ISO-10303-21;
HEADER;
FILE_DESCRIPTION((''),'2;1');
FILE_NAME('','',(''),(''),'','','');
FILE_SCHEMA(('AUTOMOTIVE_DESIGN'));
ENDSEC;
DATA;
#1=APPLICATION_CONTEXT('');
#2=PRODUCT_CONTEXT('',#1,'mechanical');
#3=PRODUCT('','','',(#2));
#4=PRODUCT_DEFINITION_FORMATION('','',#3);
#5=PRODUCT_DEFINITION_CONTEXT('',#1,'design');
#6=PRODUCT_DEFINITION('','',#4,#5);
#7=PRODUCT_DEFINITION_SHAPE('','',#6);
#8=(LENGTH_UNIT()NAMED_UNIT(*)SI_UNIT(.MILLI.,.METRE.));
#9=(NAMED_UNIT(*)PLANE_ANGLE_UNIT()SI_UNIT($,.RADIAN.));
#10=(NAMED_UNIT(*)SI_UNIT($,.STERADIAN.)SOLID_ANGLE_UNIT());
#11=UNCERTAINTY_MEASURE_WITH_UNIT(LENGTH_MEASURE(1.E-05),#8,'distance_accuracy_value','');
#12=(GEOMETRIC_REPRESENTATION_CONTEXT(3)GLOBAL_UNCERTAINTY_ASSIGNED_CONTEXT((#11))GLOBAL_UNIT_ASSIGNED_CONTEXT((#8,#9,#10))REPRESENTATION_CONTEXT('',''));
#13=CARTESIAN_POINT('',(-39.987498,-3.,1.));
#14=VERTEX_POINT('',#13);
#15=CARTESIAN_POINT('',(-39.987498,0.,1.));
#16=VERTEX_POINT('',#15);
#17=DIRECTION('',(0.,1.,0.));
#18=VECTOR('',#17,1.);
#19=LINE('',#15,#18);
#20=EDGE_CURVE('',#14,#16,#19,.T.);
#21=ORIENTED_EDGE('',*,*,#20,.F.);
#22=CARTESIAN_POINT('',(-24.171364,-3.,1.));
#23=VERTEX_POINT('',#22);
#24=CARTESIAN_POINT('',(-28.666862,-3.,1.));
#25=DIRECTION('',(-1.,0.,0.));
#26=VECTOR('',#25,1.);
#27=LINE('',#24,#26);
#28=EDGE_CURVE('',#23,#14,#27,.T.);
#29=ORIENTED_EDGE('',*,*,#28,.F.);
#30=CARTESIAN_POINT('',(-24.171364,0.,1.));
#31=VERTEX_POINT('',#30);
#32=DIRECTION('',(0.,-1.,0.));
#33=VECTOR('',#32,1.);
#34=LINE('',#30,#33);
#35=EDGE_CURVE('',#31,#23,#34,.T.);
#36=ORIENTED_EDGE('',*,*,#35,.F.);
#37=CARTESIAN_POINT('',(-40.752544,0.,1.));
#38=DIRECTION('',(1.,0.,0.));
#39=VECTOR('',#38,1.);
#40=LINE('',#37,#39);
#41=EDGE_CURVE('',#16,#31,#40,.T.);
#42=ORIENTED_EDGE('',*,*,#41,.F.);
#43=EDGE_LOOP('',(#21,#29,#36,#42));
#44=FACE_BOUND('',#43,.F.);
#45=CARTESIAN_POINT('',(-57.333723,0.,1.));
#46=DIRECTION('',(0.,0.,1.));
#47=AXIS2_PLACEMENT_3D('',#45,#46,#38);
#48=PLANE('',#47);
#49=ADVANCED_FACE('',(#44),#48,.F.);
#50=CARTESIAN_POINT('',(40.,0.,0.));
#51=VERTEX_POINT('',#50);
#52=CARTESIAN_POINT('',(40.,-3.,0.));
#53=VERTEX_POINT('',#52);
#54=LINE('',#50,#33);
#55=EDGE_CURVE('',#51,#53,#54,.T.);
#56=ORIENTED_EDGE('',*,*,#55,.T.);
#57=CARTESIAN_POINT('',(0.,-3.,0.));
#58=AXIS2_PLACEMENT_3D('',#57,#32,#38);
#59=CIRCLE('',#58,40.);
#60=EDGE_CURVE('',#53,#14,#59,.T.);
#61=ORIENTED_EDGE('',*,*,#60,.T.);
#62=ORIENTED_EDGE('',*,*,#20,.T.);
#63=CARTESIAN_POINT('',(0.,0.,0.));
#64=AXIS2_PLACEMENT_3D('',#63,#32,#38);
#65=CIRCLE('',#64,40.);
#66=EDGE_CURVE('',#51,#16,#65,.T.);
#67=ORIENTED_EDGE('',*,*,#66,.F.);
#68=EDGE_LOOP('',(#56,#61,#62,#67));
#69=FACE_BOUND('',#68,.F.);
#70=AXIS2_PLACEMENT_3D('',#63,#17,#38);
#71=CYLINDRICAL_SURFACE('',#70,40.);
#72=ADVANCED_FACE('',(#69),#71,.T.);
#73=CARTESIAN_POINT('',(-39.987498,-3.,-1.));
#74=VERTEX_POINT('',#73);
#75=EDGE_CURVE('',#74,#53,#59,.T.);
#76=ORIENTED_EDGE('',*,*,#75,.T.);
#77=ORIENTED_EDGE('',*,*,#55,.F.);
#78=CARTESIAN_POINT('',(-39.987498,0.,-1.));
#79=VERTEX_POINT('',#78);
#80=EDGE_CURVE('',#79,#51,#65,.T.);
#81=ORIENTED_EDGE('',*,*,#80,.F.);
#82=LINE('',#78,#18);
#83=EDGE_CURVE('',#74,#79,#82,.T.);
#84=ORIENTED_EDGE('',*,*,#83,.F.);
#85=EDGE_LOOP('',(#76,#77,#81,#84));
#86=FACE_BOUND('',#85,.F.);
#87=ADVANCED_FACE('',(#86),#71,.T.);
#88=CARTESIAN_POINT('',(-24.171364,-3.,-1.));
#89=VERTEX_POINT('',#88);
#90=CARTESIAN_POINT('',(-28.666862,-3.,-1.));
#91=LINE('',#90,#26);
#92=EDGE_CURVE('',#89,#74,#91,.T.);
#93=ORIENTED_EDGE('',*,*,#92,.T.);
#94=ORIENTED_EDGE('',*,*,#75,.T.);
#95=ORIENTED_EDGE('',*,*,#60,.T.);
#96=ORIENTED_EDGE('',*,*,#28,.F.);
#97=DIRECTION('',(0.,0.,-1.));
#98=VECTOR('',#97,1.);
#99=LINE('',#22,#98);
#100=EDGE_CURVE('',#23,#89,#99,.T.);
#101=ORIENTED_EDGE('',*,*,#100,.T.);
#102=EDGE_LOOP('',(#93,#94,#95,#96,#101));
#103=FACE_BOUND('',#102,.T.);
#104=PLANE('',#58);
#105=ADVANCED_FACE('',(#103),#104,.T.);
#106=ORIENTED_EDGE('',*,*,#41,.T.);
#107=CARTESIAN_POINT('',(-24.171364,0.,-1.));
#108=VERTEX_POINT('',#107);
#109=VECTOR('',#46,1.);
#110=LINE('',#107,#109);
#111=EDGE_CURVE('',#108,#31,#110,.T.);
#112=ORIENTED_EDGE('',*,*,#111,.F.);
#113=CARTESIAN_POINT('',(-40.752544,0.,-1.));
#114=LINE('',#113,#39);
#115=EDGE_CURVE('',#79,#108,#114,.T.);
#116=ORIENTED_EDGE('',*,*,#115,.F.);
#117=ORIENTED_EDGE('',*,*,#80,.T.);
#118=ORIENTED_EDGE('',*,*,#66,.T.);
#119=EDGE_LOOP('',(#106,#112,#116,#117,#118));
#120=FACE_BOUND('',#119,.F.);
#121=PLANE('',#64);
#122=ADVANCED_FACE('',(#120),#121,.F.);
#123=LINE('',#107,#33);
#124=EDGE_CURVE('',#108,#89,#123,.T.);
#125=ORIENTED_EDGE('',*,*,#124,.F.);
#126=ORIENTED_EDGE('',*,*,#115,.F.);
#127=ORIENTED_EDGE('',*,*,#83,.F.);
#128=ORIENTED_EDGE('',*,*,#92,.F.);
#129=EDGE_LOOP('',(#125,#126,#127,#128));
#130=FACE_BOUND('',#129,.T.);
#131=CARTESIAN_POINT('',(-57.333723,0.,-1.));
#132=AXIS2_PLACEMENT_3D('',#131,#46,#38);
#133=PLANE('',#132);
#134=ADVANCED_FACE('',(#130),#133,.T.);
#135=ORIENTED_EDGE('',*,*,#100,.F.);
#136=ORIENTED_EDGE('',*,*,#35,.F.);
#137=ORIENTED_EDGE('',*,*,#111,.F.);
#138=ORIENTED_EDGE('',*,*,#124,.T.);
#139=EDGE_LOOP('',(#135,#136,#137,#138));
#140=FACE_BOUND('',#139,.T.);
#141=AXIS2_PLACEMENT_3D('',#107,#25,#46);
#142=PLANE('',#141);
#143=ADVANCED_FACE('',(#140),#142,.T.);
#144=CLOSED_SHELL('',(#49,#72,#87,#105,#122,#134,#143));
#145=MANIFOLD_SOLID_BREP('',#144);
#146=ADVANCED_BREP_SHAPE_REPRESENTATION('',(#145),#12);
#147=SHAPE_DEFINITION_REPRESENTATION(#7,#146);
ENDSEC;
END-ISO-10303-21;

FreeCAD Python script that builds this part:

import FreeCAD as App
import Part
import Sketcher

V = App.Vector
Q = App.Units.Quantity

doc = App.newDocument("Part")
body = doc.addObject("PartDesign::Body", "Body")

# Sketch on XZ plane
sketch1 = body.newObject("Sketcher::SketchObject", "Sketch")
sketch1.AttachmentSupport = (doc.getObject("XZ_Plane"), [""])
sketch1.MapMode = "FlatFace"
sketch1.addGeometry(Part.Circle(V(0, 0, 0), V(0, 0, 1), 40), False)
sketch1.addConstraint(Sketcher.Constraint("Coincident", 0, 3, -1, 1))
sketch1.addConstraint(Sketcher.Constraint("Diameter", 0, Q("80 mm")))
pad1 = body.newObject("PartDesign::Pad", "Pad")
pad1.Profile = sketch1
pad1.Length = 3

# Sketch on XZ plane
sketch2 = body.newObject("Sketcher::SketchObject", "Sketch001")
sketch2.AttachmentSupport = (doc.getObject("XZ_Plane"), [""])
sketch2.MapMode = "FlatFace"
sketch2.addGeometry(Part.LineSegment(V(-57.3, 1, 0), V(-57.3, 0, 0)), False)
sketch2.addGeometry(Part.LineSegment(V(-57.3, 0, 0), V(-24.2, 0, 0)), False)
sketch2.addGeometry(Part.LineSegment(V(-24.2, 0, 0), V(-24.2, 1, 0)), False)
sketch2.addGeometry(Part.LineSegment(V(-24.2, 1, 0), V(-57.3, 1, 0)), False)
sketch2.addConstraint(Sketcher.Constraint("Coincident", 0, 2, 1, 1))
sketch2.addConstraint(Sketcher.Constraint("Coincident", 1, 2, 2, 1))
sketch2.addConstraint(Sketcher.Constraint("Coincident", 2, 2, 3, 1))
sketch2.addConstraint(Sketcher.Constraint("Coincident", 3, 2, 0, 1))
sketch2.addConstraint(Sketcher.Constraint("Vertical", 0))
sketch2.addConstraint(Sketcher.Constraint("Horizontal", 1))
sketch2.addConstraint(Sketcher.Constraint("Vertical", 2))
sketch2.addConstraint(Sketcher.Constraint("Horizontal", 3))
sketch2.addConstraint(Sketcher.Constraint("PointOnObject", 0, 2, -1))
sketch2.addConstraint(Sketcher.Constraint("DistanceY", 0, 2, 0, 1, Q("1 mm")))
sketch2.addConstraint(Sketcher.Constraint("DistanceX", 1, 1, 1, 2, Q("33.162359 mm")))
sketch2.addConstraint(Sketcher.Constraint("DistanceX", 0, 2, -1, 1, Q("57.333723 mm")))
pocket1 = body.newObject("PartDesign::Pocket", "Pocket")
pocket1.Profile = sketch2
pocket1.Length = 24.9
pocket1.Reversed = True

# Sketch on XZ plane
sketch3 = body.newObject("Sketcher::SketchObject", "Sketch002")
sketch3.AttachmentSupport = (doc.getObject("XZ_Plane"), [""])
sketch3.MapMode = "FlatFace"
sketch3.addGeometry(Part.LineSegment(V(-57.3, 1, 0), V(-57.3, -1, 0)), False)
sketch3.addGeometry(Part.LineSegment(V(-57.3, -1, 0), V(-24.2, -1, 0)), False)
sketch3.addGeometry(Part.LineSegment(V(-24.2, -1, 0), V(-24.2, 1, 0)), False)
sketch3.addGeometry(Part.LineSegment(V(-24.2, 1, 0), V(-57.3, 1, 0)), False)
sketch3.addConstraint(Sketcher.Constraint("Coincident", 0, 2, 1, 1))
sketch3.addConstraint(Sketcher.Constraint("Coincident", 1, 2, 2, 1))
sketch3.addConstraint(Sketcher.Constraint("Coincident", 2, 2, 3, 1))
sketch3.addConstraint(Sketcher.Constraint("Coincident", 3, 2, 0, 1))
sketch3.addConstraint(Sketcher.Constraint("Vertical", 0))
sketch3.addConstraint(Sketcher.Constraint("Horizontal", 1))
sketch3.addConstraint(Sketcher.Constraint("Vertical", 2))
sketch3.addConstraint(Sketcher.Constraint("Horizontal", 3))
sketch3.addConstraint(Sketcher.Constraint("DistanceY", 0, 2, 0, 1, Q("2 mm")))
sketch3.addConstraint(Sketcher.Constraint("DistanceY", 0, 2, -1, 1, Q("1 mm")))
sketch3.addConstraint(Sketcher.Constraint("DistanceX", 1, 1, 1, 2, Q("33.162359 mm")))
sketch3.addConstraint(Sketcher.Constraint("DistanceX", 0, 2, -1, 1, Q("57.333723 mm")))
pocket2 = body.newObject("PartDesign::Pocket", "Pocket001")
pocket2.Profile = sketch3
pocket2.Length = 25
pocket2.Reversed = True

doc.recompute()
